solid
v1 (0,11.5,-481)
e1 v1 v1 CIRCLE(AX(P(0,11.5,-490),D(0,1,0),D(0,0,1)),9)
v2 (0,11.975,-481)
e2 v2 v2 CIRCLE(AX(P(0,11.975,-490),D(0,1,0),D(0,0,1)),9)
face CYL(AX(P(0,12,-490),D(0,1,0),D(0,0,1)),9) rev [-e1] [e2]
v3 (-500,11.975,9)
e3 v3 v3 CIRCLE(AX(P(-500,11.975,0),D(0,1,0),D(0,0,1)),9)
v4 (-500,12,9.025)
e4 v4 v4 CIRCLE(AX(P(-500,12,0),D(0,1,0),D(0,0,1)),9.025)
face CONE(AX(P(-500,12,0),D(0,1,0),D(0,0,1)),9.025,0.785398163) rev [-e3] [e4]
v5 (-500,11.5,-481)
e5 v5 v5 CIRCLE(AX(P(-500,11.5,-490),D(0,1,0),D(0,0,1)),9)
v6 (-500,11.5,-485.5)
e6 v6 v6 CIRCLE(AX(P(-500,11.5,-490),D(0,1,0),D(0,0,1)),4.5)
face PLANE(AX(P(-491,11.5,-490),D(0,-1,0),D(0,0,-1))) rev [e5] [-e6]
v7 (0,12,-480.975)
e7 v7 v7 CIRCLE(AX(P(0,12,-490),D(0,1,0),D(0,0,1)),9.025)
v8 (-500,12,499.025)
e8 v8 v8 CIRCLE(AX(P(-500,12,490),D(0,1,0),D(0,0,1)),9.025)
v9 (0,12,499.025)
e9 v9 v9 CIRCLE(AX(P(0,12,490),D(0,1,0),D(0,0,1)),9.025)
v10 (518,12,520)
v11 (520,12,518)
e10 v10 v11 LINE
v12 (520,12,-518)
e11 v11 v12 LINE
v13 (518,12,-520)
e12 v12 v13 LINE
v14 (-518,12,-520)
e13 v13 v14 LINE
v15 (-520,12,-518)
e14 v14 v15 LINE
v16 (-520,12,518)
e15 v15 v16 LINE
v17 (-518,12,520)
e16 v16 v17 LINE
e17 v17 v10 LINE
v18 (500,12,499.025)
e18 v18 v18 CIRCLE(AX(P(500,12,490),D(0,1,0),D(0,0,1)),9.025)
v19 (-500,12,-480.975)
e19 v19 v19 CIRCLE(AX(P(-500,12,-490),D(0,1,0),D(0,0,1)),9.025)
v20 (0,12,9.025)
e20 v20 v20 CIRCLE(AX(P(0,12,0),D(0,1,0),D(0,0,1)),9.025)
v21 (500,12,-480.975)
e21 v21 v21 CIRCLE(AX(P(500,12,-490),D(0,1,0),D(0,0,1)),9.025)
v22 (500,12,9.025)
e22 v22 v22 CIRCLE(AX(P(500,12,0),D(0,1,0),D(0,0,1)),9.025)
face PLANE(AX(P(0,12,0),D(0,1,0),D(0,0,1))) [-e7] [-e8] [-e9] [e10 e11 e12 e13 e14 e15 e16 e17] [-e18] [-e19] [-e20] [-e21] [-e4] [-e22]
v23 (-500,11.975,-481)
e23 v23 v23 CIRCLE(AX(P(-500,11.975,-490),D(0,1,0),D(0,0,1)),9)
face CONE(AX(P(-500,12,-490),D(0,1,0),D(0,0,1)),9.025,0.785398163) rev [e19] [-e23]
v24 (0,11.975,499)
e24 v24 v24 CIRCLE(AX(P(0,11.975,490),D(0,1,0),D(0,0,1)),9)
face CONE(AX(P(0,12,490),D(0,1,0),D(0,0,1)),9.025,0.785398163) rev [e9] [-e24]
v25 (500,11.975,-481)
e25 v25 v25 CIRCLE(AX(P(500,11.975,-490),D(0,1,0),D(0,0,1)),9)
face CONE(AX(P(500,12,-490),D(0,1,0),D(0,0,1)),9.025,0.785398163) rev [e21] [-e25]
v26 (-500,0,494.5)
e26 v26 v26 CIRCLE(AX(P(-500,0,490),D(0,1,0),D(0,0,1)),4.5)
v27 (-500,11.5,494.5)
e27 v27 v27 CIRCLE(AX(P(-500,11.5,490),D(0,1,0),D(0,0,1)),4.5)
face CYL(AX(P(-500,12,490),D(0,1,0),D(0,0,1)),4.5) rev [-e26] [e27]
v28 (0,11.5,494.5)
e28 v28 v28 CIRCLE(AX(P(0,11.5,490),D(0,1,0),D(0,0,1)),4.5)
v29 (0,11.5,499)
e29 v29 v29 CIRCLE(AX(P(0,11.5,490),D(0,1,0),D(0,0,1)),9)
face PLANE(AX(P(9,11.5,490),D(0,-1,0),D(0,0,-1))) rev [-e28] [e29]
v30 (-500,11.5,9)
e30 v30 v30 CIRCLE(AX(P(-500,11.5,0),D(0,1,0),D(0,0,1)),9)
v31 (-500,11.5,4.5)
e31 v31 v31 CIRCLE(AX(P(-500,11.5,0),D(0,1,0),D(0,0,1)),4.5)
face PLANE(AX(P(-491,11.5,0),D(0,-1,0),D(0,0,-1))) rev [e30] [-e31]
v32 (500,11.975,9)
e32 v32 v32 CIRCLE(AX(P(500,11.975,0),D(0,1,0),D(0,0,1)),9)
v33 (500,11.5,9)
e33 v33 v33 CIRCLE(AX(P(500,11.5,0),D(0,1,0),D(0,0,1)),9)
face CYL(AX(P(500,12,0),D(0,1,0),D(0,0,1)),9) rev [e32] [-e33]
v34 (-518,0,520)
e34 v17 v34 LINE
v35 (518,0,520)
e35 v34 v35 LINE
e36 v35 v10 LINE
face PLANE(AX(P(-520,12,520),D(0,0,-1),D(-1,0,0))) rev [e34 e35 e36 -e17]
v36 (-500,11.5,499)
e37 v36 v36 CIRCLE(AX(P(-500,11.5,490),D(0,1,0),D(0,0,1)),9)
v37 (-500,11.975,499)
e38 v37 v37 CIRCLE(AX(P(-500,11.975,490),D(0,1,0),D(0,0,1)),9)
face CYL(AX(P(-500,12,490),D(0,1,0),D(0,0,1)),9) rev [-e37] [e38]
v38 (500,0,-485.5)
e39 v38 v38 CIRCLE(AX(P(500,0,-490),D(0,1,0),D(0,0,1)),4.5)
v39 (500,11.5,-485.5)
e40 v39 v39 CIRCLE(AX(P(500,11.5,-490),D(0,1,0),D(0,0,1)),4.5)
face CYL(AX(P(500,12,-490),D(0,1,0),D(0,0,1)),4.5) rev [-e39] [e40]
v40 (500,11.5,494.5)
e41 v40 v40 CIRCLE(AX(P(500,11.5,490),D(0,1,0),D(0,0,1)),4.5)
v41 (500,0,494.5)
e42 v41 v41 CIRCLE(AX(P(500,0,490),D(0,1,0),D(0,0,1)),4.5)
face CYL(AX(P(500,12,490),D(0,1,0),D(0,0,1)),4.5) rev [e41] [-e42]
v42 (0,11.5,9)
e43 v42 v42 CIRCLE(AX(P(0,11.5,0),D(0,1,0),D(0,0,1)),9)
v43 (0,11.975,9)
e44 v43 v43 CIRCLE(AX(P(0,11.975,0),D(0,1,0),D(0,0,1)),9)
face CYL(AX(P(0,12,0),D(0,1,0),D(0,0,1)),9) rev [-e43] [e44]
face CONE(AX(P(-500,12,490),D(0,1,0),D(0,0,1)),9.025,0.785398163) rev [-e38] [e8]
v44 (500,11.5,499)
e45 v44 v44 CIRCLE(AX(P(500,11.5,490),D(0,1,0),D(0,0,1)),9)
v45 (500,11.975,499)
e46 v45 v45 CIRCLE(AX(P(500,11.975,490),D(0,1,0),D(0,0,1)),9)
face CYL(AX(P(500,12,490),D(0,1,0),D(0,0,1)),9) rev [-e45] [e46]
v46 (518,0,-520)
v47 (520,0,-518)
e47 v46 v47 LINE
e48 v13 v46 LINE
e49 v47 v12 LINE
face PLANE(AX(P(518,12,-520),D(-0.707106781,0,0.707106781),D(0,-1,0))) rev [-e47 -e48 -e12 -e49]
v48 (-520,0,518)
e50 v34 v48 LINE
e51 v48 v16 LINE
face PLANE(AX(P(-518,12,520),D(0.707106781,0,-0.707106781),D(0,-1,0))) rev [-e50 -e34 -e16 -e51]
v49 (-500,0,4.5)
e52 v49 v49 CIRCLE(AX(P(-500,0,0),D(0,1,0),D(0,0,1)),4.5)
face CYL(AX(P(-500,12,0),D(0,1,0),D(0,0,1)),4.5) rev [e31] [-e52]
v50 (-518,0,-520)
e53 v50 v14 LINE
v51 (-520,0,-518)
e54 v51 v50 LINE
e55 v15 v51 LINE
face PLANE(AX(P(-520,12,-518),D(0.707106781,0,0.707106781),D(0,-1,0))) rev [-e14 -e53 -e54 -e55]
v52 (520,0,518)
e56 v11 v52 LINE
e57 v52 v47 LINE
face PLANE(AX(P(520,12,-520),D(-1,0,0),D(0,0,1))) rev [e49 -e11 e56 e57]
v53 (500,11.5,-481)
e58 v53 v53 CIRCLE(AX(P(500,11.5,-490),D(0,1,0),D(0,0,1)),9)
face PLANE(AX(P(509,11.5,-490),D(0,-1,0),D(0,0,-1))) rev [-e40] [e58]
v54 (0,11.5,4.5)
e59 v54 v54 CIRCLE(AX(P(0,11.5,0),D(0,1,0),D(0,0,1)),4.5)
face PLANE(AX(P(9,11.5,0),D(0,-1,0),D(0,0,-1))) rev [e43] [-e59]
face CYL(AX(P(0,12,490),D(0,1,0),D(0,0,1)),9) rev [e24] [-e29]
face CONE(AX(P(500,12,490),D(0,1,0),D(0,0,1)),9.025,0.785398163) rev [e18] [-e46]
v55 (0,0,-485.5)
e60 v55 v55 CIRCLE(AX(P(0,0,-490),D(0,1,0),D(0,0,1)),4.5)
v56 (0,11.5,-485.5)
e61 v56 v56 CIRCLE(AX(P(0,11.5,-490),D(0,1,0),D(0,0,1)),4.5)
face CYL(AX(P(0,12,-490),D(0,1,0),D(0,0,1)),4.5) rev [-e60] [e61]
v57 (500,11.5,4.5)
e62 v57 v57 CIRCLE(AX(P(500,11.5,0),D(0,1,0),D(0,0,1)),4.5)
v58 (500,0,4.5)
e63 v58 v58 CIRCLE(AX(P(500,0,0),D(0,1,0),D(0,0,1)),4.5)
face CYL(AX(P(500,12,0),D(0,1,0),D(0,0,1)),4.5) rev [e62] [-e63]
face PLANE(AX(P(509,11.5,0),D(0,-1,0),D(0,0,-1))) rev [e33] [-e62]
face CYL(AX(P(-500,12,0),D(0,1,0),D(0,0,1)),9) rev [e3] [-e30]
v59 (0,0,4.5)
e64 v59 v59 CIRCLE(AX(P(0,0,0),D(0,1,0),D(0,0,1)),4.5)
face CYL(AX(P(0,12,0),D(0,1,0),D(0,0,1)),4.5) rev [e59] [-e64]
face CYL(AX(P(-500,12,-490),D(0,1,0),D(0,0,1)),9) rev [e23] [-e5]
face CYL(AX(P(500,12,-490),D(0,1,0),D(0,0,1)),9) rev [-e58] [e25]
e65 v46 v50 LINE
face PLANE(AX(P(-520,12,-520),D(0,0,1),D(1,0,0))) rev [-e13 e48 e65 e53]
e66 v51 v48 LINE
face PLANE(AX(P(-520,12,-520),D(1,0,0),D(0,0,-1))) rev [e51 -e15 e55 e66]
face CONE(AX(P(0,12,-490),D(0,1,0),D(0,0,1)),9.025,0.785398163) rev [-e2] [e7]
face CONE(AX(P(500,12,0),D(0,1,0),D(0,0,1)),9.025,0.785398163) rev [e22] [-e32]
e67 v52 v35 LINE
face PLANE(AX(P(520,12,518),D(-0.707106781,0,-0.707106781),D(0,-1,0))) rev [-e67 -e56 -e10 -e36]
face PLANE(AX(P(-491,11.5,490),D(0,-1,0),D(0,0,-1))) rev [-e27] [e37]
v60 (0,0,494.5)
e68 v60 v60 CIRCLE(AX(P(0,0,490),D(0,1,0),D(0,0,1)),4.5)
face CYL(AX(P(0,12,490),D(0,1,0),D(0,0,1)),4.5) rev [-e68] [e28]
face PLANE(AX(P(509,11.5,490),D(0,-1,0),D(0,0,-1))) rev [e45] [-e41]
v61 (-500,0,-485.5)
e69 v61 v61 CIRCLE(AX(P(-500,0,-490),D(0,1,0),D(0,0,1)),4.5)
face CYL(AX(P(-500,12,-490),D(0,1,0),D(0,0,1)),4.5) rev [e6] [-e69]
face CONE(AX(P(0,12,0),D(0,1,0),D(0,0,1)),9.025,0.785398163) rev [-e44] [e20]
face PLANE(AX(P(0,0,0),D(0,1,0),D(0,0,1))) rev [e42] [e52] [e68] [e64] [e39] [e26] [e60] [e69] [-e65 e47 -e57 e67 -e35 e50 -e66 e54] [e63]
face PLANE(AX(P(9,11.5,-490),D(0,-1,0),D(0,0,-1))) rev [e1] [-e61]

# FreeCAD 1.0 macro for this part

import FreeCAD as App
import Part
import Sketcher

V = App.Vector
Q = App.Units.Quantity


def edges_at(feature, points):
    """Names of the edges that pass closest to the given points."""
    edges = feature.Shape.Edges
    near = lambda p: min(range(len(edges)), key=lambda i: edges[i].distToShape(Part.Vertex(*p))[0])
    return sorted({f"Edge{near(p) + 1}" for p in points})


def add_polygon(sketch, points):
    """Adds a closed chain of lines whose ends are joined by coincident constraints."""
    first, n = sketch.GeometryCount, len(points)
    for a, b in zip(points, points[1:] + points[:1]):
        sketch.addGeometry(Part.LineSegment(App.Vector(*a, 0), App.Vector(*b, 0)), False)
    for i in range(n):
        sketch.addConstraint(Sketcher.Constraint("Coincident", first + i, 2, first + (i + 1) % n, 1))

doc = App.newDocument("Part")
body = doc.addObject("PartDesign::Body", "Body")

sketch1 = body.newObject("Sketcher::SketchObject", "Sketch")
sketch1.AttachmentSupport = (doc.getObject("XZ_Plane"), [""])
sketch1.MapMode = "FlatFace"
add_polygon(sketch1, [(-520, -520), (-520, 520), (520, 520), (520, -520)])
sketch1.addConstraint([
    Sketcher.Constraint("Vertical", 0),
    Sketcher.Constraint("Horizontal", 1),
    Sketcher.Constraint("Vertical", 2),
    Sketcher.Constraint("Horizontal", 3),
    Sketcher.Constraint("Symmetric", 0, 2, 2, 2, -1, 1),
    Sketcher.Constraint("Equal", 3, 0),
    Sketcher.Constraint("DistanceX", 1, 1, 1, 2, 1040.0),
])
pad1 = body.newObject("PartDesign::Pad", "Pad")
pad1.Profile = sketch1
pad1.Length = 12
pad1.Reversed = True
doc.recompute()

chamfer = body.newObject("PartDesign::Chamfer", "Chamfer")
chamfer.Base = (pad1, edges_at(pad1, [
    (520, 6, 520),
    (-520, 6, 520),
    (-520, 6, -520),
    (520, 6, -520),
]))
chamfer.Size = 2

sketch2 = body.newObject("Sketcher::SketchObject", "Sketch001")
sketch2.AttachmentSupport = (doc.getObject("YZ_Plane"), [""])
sketch2.MapMode = "FlatFace"
sketch2.AttachmentOffset = App.Placement(V(0, 0, -500), App.Rotation())
add_polygon(sketch2, [(0, -490), (12, -490), (12, -480.975), (11.975, -481), (11.5, -481), (11.5, -485.5), (0, -485.5)])
sketch2.addGeometry(Part.LineSegment(V(12, -490, 0), V(0, -490, 0)), True)
sketch2.addConstraint([
    Sketcher.Constraint("Horizontal", 0),
    Sketcher.Constraint("Vertical", 1),
    Sketcher.Constraint("Horizontal", 3),
    Sketcher.Constraint("Vertical", 4),
    Sketcher.Constraint("Horizontal", 5),
    Sketcher.Constraint("Vertical", 6),
    Sketcher.Constraint("Horizontal", 7),
    Sketcher.Constraint("Coincident", 7, 1, 0, 2),
    Sketcher.Constraint("PointOnObject", 5, 2, -2),
    Sketcher.Constraint("PointOnObject", 7, 2, -2),
    Sketcher.Constraint("Equal", 4, 6),
    Sketcher.Constraint("DistanceX", 0, 1, 0, 2, 12.0),
    Sketcher.Constraint("Angle", 2, Q("-135 deg")),
    Sketcher.Constraint("DistanceX", 5, 2, 5, 1, 11.5),
    Sketcher.Constraint("DistanceY", 4, 2, 4, 1, 4.5),
    Sketcher.Constraint("DistanceY", 0, 2, -1, 1, 490.0),
    Sketcher.Constraint("DistanceX", 3, 2, 3, 1, 0.475),
])
groove = body.newObject("PartDesign::Groove", "Groove")
groove.Profile = sketch2
groove.ReferenceAxis = (sketch2, ["Axis0"])
groove.Angle = 360
doc.recompute()

linearpattern = body.newObject("PartDesign::LinearPattern", "LinearPattern")
linearpattern.Originals = [groove]
linearpattern.Direction = (doc.getObject("X_Axis"), [""])
linearpattern.Mode = "offset"
linearpattern.Offset = 500
linearpattern.Occurrences = 2
body.Tip = linearpattern
doc.recompute()

linearpattern2 = body.newObject("PartDesign::LinearPattern", "LinearPattern001")
linearpattern2.Originals = [groove]
linearpattern2.Direction = (doc.getObject("X_Axis"), [""])
linearpattern2.Mode = "offset"
linearpattern2.Offset = 1000
linearpattern2.Occurrences = 2
body.Tip = linearpattern2
doc.recompute()

linearpattern3 = body.newObject("PartDesign::LinearPattern", "LinearPattern002")
linearpattern3.Originals = [groove]
linearpattern3.Direction = (doc.getObject("Z_Axis"), [""])
linearpattern3.Mode = "offset"
linearpattern3.Offset = 490
linearpattern3.Occurrences = 2
body.Tip = linearpattern3
doc.recompute()

datumline = body.newObject("PartDesign::Line", "DatumLine")
datumline.Placement = App.Placement(V(0, 0, 0), App.Rotation(V(0, 0, 1), V(0.714212839, 0, 0.699928582)))
linearpattern4 = body.newObject("PartDesign::LinearPattern", "LinearPattern003")
linearpattern4.Originals = [groove]
linearpattern4.Direction = (datumline, [""])
linearpattern4.Mode = "offset"
linearpattern4.Offset = 700.071425
linearpattern4.Occurrences = 2
body.Tip = linearpattern4
doc.recompute()

datumline2 = body.newObject("PartDesign::Line", "DatumLine001")
datumline2.Placement = App.Placement(V(0, 0, 0), App.Rotation(V(0, 0, 1), V(0.897990302, 0, 0.440015248)))
linearpattern5 = body.newObject("PartDesign::LinearPattern", "LinearPattern004")
linearpattern5.Originals = [groove]
linearpattern5.Direction = (datumline2, [""])
linearpattern5.Mode = "offset"
linearpattern5.Offset = 1113.597773
linearpattern5.Occurrences = 2
body.Tip = linearpattern5
doc.recompute()

linearpattern6 = body.newObject("PartDesign::LinearPattern", "LinearPattern005")
linearpattern6.Originals = [groove]
linearpattern6.Direction = (doc.getObject("Z_Axis"), [""])
linearpattern6.Mode = "offset"
linearpattern6.Offset = 980
linearpattern6.Occurrences = 2
body.Tip = linearpattern6
doc.recompute()

datumline3 = body.newObject("PartDesign::Line", "DatumLine002")
datumline3.Placement = App.Placement(V(0, 0, 0), App.Rotation(V(0, 0, 1), V(0.454470342, 0, 0.89076187)))
linearpattern7 = body.newObject("PartDesign::LinearPattern", "LinearPattern006")
linearpattern7.Originals = [groove]
linearpattern7.Direction = (datumline3, [""])
linearpattern7.Mode = "offset"
linearpattern7.Offset = 1100.181803
linearpattern7.Occurrences = 2
body.Tip = linearpattern7
doc.recompute()

datumline4 = body.newObject("PartDesign::Line", "DatumLine003")
datumline4.Placement = App.Placement(V(0, 0, 0), App.Rotation(V(0, 0, 1), V(0.714212839, 0, 0.699928582)))
linearpattern8 = body.newObject("PartDesign::LinearPattern", "LinearPattern007")
linearpattern8.Originals = [groove]
linearpattern8.Direction = (datumline4, [""])
linearpattern8.Mode = "offset"
linearpattern8.Offset = 1400.14285
linearpattern8.Occurrences = 2
body.Tip = linearpattern8

doc.recompute()
